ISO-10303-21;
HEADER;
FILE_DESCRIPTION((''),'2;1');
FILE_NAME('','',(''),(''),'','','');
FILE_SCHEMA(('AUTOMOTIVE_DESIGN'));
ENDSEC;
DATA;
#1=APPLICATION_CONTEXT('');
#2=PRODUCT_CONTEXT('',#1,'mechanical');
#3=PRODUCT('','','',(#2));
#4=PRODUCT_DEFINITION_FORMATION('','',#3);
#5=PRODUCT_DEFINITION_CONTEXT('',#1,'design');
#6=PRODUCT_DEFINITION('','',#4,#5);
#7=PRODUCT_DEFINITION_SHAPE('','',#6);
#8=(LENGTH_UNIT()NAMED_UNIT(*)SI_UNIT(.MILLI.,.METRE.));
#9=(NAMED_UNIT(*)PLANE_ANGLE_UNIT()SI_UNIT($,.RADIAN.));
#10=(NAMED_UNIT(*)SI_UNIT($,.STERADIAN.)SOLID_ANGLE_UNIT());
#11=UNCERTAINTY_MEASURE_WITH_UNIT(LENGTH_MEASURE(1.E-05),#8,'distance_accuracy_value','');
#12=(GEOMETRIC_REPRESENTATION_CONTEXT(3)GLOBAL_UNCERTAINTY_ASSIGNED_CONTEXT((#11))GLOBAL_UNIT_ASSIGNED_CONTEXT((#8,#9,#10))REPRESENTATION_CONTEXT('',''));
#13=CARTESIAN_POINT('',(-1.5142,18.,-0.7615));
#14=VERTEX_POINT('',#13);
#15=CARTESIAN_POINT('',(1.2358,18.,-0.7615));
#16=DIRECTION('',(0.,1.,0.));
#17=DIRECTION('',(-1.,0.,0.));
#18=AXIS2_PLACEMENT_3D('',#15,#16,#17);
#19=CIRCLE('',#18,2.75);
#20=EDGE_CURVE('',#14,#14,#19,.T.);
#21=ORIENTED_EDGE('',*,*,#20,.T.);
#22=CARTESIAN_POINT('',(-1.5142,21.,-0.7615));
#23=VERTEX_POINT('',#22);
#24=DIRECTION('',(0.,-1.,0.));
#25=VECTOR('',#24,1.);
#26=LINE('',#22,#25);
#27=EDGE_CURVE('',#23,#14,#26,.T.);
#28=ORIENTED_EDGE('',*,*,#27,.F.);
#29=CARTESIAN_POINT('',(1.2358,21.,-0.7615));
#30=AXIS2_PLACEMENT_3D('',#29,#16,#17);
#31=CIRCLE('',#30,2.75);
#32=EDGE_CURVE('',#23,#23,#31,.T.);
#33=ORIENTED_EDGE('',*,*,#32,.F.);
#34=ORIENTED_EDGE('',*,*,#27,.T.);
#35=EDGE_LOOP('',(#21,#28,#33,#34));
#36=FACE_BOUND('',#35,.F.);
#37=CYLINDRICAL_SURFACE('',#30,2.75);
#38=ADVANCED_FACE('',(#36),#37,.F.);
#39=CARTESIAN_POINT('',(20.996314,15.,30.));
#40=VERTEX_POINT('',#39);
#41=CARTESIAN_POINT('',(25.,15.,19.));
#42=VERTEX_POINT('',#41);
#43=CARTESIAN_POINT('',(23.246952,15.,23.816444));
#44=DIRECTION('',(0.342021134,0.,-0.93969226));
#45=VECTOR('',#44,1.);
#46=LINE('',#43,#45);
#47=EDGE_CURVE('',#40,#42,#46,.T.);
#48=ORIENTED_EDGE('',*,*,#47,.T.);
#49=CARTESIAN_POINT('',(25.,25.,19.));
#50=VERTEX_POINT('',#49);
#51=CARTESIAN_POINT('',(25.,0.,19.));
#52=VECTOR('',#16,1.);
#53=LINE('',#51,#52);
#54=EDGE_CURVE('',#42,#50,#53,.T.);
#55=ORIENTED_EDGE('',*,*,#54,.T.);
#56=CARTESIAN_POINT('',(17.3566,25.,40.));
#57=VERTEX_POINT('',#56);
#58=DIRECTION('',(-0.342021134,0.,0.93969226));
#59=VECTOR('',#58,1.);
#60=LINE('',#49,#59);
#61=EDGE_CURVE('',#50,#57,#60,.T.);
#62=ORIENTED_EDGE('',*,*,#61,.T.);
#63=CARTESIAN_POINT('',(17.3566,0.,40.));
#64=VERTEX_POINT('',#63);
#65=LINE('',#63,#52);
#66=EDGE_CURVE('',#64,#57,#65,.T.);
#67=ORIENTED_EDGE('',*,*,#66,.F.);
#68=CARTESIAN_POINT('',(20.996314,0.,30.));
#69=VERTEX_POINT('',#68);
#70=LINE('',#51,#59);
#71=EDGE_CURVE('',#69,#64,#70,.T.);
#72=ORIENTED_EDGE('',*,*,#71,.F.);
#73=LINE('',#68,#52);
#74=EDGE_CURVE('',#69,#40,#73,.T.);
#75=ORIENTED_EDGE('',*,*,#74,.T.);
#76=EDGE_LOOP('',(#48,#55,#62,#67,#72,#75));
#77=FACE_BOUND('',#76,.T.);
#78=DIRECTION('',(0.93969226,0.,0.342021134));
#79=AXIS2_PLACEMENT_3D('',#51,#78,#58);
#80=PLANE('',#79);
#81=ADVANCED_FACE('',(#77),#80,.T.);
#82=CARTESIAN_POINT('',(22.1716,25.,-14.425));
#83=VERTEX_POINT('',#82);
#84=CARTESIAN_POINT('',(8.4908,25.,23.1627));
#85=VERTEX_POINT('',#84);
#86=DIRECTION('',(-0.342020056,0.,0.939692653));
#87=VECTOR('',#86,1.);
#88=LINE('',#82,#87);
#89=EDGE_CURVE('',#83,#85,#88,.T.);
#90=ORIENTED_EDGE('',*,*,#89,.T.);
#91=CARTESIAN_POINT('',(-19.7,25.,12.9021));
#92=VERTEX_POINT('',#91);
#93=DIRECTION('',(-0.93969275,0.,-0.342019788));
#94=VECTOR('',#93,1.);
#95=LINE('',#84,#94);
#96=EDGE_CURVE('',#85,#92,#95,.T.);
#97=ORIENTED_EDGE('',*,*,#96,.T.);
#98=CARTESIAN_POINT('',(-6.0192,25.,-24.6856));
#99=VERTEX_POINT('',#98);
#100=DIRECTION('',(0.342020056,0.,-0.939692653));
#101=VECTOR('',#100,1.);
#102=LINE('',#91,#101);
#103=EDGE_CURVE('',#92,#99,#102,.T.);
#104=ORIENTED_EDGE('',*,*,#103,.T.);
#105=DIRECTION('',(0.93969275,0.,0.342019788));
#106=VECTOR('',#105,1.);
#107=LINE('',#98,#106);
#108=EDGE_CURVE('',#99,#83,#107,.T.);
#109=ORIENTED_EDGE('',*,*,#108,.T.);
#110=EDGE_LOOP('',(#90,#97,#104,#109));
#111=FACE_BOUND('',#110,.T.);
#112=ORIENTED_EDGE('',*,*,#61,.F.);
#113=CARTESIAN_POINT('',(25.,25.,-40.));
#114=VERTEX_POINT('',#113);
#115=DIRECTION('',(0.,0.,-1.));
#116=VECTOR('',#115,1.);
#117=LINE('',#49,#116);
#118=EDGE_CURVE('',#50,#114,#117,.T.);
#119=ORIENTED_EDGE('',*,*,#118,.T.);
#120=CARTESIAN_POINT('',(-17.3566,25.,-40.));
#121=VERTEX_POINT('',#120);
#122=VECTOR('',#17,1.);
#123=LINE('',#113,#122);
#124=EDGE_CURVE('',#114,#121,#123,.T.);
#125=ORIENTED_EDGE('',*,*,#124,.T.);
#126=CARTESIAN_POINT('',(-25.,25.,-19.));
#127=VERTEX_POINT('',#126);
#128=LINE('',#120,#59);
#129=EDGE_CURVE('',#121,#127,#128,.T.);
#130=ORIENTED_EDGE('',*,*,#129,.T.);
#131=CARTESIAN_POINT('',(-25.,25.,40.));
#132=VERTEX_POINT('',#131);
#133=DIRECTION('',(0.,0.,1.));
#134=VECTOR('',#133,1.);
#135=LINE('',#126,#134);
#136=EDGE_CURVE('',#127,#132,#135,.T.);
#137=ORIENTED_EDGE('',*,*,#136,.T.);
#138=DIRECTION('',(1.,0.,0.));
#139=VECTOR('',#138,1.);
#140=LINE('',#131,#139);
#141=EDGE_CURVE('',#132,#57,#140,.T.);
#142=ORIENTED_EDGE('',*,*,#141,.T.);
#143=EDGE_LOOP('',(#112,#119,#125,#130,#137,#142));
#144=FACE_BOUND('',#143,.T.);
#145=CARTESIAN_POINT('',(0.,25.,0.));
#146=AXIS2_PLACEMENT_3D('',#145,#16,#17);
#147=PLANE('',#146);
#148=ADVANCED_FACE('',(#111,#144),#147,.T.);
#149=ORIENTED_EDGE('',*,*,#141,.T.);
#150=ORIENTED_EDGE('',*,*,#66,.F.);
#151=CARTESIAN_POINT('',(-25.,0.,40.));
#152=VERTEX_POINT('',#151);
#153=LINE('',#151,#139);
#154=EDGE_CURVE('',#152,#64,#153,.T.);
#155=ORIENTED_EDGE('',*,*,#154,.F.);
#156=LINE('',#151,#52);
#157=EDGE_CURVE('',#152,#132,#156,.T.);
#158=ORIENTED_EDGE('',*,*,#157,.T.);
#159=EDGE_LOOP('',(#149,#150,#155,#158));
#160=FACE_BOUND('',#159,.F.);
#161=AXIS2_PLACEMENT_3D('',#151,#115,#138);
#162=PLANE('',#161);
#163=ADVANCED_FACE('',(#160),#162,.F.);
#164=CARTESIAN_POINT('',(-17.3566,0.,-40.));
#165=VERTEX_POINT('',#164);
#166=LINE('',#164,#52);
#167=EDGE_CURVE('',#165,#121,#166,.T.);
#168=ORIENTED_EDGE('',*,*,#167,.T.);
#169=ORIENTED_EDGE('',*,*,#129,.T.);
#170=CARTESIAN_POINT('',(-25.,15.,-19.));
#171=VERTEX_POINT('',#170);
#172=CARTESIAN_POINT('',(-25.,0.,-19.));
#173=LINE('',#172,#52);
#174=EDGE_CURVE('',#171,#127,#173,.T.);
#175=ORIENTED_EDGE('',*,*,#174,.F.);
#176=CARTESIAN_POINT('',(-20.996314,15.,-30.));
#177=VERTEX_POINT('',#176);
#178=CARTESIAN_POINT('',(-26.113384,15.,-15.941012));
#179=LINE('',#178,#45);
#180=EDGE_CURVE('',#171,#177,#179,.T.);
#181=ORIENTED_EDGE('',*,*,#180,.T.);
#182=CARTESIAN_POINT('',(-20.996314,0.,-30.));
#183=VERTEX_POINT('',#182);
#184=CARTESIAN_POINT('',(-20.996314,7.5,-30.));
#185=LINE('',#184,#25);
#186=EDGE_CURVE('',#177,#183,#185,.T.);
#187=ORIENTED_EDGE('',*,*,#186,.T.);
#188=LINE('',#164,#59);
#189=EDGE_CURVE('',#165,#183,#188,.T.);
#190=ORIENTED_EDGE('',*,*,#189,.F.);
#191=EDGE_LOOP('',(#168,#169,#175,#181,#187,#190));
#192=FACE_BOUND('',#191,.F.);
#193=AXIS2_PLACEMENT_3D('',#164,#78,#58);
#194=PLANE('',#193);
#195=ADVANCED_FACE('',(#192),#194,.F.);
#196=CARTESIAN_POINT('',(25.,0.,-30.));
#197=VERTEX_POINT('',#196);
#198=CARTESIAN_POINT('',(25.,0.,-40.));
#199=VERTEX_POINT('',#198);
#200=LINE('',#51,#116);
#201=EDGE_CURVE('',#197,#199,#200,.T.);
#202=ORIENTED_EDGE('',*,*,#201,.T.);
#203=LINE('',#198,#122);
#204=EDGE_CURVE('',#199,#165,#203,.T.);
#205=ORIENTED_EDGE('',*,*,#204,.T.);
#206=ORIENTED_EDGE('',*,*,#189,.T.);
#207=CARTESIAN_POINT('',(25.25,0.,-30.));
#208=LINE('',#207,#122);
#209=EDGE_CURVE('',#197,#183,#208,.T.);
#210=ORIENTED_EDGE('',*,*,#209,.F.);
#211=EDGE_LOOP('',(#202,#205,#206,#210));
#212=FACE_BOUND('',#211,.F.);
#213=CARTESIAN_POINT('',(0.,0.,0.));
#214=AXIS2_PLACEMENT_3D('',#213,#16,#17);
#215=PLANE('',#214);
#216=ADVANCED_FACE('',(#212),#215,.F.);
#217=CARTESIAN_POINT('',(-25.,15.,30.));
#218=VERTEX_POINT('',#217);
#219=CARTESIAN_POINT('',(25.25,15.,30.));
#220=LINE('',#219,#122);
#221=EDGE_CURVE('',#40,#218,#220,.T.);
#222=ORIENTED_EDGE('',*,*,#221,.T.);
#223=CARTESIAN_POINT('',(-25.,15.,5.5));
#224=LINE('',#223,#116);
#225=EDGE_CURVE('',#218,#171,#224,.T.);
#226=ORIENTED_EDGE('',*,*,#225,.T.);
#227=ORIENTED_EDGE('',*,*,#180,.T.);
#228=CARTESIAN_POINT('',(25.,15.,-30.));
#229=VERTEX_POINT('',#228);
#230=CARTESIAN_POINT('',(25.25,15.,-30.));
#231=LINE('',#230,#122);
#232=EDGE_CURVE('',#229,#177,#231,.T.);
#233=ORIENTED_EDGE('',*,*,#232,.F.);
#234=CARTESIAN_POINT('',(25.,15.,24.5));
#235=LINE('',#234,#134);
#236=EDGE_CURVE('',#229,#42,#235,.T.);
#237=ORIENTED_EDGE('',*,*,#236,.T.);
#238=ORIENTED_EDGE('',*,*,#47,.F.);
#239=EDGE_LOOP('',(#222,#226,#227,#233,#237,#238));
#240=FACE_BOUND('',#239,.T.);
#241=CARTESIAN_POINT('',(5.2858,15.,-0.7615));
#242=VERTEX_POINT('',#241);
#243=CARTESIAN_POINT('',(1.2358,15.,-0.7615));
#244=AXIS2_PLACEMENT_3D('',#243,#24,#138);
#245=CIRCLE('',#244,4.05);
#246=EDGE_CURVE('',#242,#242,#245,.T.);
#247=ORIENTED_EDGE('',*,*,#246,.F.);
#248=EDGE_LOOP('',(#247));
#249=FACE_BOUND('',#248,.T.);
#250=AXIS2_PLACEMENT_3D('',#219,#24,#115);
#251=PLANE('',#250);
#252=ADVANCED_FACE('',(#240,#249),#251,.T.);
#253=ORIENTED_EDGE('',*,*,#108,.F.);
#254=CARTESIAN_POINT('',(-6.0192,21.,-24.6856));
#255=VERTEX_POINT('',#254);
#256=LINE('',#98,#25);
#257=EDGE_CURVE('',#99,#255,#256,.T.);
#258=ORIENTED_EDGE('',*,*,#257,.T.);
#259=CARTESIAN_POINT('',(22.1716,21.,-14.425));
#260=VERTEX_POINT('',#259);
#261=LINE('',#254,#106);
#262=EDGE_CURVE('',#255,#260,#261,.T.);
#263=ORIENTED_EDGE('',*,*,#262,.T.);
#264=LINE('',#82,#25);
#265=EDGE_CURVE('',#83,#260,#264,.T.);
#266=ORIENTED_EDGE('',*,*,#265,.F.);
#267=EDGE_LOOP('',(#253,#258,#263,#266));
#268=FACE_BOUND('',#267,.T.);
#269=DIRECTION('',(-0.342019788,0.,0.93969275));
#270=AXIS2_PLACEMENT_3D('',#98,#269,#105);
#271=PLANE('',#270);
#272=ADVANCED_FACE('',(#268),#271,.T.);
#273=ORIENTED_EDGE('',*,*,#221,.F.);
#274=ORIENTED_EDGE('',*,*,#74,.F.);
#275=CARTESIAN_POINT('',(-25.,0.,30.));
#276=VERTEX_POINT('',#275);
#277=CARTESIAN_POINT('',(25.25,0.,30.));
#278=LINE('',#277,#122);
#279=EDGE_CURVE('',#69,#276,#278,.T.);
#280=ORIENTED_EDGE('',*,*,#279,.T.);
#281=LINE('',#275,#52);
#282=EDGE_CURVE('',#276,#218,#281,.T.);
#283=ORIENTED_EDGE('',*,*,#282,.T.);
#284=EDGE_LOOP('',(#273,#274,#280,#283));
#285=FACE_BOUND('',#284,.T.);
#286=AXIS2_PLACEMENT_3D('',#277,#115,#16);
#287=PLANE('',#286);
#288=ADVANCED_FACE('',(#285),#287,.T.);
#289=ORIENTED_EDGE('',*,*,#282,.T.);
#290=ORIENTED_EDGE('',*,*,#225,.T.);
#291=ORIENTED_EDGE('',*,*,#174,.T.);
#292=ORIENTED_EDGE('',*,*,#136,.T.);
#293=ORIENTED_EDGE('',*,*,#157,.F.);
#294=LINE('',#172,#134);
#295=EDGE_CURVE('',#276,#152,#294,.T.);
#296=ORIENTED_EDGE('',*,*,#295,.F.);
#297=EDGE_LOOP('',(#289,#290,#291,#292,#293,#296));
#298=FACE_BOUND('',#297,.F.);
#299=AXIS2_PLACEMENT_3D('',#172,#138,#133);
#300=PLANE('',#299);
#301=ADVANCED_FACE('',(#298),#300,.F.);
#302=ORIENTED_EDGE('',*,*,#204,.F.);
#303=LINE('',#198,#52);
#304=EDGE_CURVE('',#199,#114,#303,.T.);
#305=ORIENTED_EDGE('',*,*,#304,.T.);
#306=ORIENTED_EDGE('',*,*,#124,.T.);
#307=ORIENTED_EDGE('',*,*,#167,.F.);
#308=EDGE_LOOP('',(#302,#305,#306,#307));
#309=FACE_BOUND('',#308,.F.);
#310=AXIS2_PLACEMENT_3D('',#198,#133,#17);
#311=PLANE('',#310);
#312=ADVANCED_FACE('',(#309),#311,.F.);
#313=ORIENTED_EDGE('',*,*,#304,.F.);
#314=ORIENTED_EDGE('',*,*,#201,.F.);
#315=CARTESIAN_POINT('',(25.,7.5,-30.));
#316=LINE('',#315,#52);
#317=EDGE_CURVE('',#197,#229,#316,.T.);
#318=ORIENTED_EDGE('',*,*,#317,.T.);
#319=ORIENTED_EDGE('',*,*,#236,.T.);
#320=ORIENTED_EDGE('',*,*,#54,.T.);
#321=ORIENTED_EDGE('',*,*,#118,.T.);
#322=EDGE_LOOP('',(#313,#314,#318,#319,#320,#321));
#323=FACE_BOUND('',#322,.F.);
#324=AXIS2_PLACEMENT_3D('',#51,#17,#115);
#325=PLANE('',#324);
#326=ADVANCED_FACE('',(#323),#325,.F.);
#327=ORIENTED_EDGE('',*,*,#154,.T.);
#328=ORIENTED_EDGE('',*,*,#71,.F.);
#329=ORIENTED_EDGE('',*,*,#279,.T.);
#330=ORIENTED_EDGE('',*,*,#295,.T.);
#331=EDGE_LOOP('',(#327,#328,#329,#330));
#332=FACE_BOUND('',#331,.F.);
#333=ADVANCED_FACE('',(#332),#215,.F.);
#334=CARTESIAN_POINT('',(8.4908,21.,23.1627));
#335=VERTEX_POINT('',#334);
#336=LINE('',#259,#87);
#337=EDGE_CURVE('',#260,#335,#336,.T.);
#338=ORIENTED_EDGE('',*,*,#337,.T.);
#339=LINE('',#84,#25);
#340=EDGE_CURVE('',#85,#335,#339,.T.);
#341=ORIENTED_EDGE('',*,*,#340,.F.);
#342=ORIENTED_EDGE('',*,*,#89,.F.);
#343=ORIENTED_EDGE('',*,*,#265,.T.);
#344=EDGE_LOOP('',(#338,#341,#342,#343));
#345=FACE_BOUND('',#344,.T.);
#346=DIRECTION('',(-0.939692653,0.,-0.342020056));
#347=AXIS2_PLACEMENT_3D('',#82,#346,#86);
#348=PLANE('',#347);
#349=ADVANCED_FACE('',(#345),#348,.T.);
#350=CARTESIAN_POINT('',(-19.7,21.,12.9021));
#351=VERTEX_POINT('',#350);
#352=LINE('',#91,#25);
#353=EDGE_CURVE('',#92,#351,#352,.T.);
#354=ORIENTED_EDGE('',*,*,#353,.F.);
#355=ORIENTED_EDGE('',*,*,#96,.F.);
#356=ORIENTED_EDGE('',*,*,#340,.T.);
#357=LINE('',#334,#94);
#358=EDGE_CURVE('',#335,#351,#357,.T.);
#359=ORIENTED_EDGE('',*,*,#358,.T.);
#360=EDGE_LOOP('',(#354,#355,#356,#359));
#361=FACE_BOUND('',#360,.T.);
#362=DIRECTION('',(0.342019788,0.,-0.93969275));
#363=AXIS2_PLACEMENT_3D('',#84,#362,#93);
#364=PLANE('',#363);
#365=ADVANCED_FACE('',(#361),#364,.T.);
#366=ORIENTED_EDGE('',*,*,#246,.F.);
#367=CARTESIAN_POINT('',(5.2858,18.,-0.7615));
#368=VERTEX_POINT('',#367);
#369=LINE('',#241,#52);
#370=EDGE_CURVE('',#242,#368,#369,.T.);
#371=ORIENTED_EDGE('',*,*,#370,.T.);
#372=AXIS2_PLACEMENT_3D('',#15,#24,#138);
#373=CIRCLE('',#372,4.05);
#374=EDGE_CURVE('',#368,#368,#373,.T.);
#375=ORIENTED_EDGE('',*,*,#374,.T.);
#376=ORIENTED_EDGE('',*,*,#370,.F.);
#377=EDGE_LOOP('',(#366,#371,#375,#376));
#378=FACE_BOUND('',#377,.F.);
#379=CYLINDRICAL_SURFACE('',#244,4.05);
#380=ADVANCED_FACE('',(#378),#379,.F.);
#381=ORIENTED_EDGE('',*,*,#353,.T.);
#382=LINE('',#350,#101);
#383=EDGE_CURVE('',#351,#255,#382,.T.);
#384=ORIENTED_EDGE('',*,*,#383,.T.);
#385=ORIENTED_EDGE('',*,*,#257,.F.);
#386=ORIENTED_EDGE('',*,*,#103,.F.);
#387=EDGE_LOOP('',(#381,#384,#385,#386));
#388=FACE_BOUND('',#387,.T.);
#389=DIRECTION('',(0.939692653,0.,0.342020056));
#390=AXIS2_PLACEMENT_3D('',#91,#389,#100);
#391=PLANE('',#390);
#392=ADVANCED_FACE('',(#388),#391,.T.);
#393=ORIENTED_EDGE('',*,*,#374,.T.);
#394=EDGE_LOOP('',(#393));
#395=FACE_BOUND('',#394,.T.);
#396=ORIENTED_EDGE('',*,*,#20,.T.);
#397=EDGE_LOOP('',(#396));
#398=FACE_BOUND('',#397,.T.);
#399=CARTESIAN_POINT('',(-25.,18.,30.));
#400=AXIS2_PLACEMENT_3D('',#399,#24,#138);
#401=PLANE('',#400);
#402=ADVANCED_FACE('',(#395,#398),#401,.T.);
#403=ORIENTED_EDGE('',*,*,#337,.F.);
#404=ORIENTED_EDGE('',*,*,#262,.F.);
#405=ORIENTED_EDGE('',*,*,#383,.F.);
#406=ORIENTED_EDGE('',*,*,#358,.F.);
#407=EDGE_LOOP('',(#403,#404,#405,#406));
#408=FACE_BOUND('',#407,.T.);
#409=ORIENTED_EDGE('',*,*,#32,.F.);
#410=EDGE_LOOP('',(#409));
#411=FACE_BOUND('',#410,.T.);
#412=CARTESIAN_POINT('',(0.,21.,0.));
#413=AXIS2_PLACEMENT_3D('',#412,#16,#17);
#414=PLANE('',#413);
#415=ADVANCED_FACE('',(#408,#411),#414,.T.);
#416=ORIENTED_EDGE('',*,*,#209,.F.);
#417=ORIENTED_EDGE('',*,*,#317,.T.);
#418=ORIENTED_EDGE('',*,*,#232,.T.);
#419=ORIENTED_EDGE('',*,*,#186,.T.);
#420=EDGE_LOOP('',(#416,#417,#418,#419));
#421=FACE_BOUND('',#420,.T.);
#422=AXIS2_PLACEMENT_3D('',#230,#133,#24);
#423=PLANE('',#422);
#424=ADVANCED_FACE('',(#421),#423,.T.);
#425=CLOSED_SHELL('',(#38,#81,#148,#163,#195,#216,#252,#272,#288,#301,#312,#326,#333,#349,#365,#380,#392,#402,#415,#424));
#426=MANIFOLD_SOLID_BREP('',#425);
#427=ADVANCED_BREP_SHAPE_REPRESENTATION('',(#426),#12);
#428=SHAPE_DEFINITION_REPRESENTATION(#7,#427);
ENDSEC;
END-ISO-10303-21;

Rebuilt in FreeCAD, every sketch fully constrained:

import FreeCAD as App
import Part
import Sketcher

V = App.Vector
Q = App.Units.Quantity


def add_polygon(sketch, points):
    """Adds a closed chain of lines whose ends are joined by coincident constraints."""
    first, n = sketch.GeometryCount, len(points)
    for a, b in zip(points, points[1:] + points[:1]):
        sketch.addGeometry(Part.LineSegment(App.Vector(*a, 0), App.Vector(*b, 0)), False)
    for i in range(n):
        sketch.addConstraint(Sketcher.Constraint("Coincident", first + i, 2, first + (i + 1) % n, 1))

doc = App.newDocument("Part")
body = doc.addObject("PartDesign::Body", "Body")

sketch1 = body.newObject("Sketcher::SketchObject", "Sketch")
sketch1.AttachmentSupport = (doc.getObject("XZ_Plane"), [""])
sketch1.MapMode = "FlatFace"
add_polygon(sketch1, [(17, 40), (25, 19), (25, -40), (-17, -40), (-25, -19), (-25, 40)])
sketch1.addConstraint(Sketcher.Constraint("Vertical", 1))
sketch1.addConstraint(Sketcher.Constraint("Horizontal", 2))
sketch1.addConstraint(Sketcher.Constraint("Vertical", 4))
sketch1.addConstraint(Sketcher.Constraint("Horizontal", 5))
sketch1.addConstraint(Sketcher.Constraint("Symmetric", 0, 2, 3, 2, -1, 1))
sketch1.addConstraint(Sketcher.Constraint("Symmetric", 2, 2, 5, 2, -1, 1))
sketch1.addConstraint(Sketcher.Constraint("DistanceY", 2, 2, 3, 2, 21.0))
sketch1.addConstraint(Sketcher.Constraint("DistanceX", 3, 2, 1, 2, 50.0))
sketch1.addConstraint(Sketcher.Constraint("DistanceY", 2, 2, 4, 2, 80.0))
sketch1.addConstraint(Sketcher.Constraint("Angle", 0, Q("-70 deg")))
pad1 = body.newObject("PartDesign::Pad", "Pad")
pad1.Profile = sketch1
pad1.Length = 25
pad1.Reversed = True

sketch2 = body.newObject("Sketcher::SketchObject", "Sketch001")
sketch2.AttachmentSupport = (doc.getObject("YZ_Plane"), [""])
sketch2.MapMode = "FlatFace"
sketch2.AttachmentOffset = App.Placement(V(0, 0, 25.25), App.Rotation())
add_polygon(sketch2, [(15, 30), (0, 30), (0, -30), (15, -30)])
sketch2.addConstraint(Sketcher.Constraint("Horizontal", 0))
sketch2.addConstraint(Sketcher.Constraint("Vertical", 1))
sketch2.addConstraint(Sketcher.Constraint("Horizontal", 2))
sketch2.addConstraint(Sketcher.Constraint("Vertical", 3))
sketch2.addConstraint(Sketcher.Constraint("Symmetric", 0, 2, 1, 2, -1, 1))
sketch2.addConstraint(Sketcher.Constraint("DistanceX", 0, 2, 0, 1, 15.0))
sketch2.addConstraint(Sketcher.Constraint("DistanceY", 1, 2, 1, 1, 60.0))
pocket1 = body.newObject("PartDesign::Pocket", "Pocket")
pocket1.Profile = sketch2
pocket1.Type = "ThroughAll"

sketch3 = body.newObject("Sketcher::SketchObject", "Sketch002")
sketch3.AttachmentSupport = (doc.getObject("XZ_Plane"), [""])
sketch3.MapMode = "FlatFace"
sketch3.AttachmentOffset = App.Placement(V(0, 0, -25), App.Rotation())
add_polygon(sketch3, [(22, -14), (-6, -25), (-20, 13), (8, 23)])
sketch3.addConstraint(Sketcher.Constraint("Perpendicular", 0, 1))
sketch3.addConstraint(Sketcher.Constraint("Perpendicular", 1, 2))
sketch3.addConstraint(Sketcher.Constraint("Perpendicular", 2, 3))
sketch3.addConstraint(Sketcher.Constraint("Angle", 3, Q("-70 deg")))
sketch3.addConstraint(Sketcher.Constraint("Distance", 0, 30.0))
sketch3.addConstraint(Sketcher.Constraint("Distance", 1, 40.0))
sketch3.addConstraint(Sketcher.Constraint("DistanceX", 1, 2, -1, 1, 19.7))
sketch3.addConstraint(Sketcher.Constraint("DistanceY", -1, 1, 1, 2, 12.902))
pocket2 = body.newObject("PartDesign::Pocket", "Pocket001")
pocket2.Profile = sketch3
pocket2.Length = 4
pocket2.Reversed = True

sketch4 = body.newObject("Sketcher::SketchObject", "Sketch003")
sketch4.AttachmentSupport = (doc.getObject("XZ_Plane"), [""])
sketch4.MapMode = "FlatFace"
sketch4.AttachmentOffset = App.Placement(V(0, 0, -21), App.Rotation())
sketch4.addGeometry(Part.Circle(V(1.2, -0.8, 0), V(0, 0, 1), 2.8), False)
sketch4.addConstraint(Sketcher.Constraint("Diameter", 0, 5.5))
sketch4.addConstraint(Sketcher.Constraint("DistanceX", -1, 1, 0, 3, 1.2358))
sketch4.addConstraint(Sketcher.Constraint("DistanceY", 0, 3, -1, 1, 0.7615))
pocket3 = body.newObject("PartDesign::Pocket", "Pocket002")
pocket3.Profile = sketch4
pocket3.Type = "ThroughAll"
pocket3.Reversed = True

sketch5 = body.newObject("Sketcher::SketchObject", "Sketch004")
sketch5.AttachmentSupport = (doc.getObject("XZ_Plane"), [""])
sketch5.MapMode = "FlatFace"
sketch5.AttachmentOffset = App.Placement(V(0, 0, -15), App.Rotation())
sketch5.addGeometry(Part.Circle(V(1.2, -0.8, 0), V(0, 0, 1), 4), False)
sketch5.addConstraint(Sketcher.Constraint("Diameter", 0, 8.1))
sketch5.addConstraint(Sketcher.Constraint("DistanceX", -1, 1, 0, 3, 1.2358))
sketch5.addConstraint(Sketcher.Constraint("DistanceY", 0, 3, -1, 1, 0.7615))
pocket4 = body.newObject("PartDesign::Pocket", "Pocket003")
pocket4.Profile = sketch5
pocket4.Length = 3

doc.recompute()
